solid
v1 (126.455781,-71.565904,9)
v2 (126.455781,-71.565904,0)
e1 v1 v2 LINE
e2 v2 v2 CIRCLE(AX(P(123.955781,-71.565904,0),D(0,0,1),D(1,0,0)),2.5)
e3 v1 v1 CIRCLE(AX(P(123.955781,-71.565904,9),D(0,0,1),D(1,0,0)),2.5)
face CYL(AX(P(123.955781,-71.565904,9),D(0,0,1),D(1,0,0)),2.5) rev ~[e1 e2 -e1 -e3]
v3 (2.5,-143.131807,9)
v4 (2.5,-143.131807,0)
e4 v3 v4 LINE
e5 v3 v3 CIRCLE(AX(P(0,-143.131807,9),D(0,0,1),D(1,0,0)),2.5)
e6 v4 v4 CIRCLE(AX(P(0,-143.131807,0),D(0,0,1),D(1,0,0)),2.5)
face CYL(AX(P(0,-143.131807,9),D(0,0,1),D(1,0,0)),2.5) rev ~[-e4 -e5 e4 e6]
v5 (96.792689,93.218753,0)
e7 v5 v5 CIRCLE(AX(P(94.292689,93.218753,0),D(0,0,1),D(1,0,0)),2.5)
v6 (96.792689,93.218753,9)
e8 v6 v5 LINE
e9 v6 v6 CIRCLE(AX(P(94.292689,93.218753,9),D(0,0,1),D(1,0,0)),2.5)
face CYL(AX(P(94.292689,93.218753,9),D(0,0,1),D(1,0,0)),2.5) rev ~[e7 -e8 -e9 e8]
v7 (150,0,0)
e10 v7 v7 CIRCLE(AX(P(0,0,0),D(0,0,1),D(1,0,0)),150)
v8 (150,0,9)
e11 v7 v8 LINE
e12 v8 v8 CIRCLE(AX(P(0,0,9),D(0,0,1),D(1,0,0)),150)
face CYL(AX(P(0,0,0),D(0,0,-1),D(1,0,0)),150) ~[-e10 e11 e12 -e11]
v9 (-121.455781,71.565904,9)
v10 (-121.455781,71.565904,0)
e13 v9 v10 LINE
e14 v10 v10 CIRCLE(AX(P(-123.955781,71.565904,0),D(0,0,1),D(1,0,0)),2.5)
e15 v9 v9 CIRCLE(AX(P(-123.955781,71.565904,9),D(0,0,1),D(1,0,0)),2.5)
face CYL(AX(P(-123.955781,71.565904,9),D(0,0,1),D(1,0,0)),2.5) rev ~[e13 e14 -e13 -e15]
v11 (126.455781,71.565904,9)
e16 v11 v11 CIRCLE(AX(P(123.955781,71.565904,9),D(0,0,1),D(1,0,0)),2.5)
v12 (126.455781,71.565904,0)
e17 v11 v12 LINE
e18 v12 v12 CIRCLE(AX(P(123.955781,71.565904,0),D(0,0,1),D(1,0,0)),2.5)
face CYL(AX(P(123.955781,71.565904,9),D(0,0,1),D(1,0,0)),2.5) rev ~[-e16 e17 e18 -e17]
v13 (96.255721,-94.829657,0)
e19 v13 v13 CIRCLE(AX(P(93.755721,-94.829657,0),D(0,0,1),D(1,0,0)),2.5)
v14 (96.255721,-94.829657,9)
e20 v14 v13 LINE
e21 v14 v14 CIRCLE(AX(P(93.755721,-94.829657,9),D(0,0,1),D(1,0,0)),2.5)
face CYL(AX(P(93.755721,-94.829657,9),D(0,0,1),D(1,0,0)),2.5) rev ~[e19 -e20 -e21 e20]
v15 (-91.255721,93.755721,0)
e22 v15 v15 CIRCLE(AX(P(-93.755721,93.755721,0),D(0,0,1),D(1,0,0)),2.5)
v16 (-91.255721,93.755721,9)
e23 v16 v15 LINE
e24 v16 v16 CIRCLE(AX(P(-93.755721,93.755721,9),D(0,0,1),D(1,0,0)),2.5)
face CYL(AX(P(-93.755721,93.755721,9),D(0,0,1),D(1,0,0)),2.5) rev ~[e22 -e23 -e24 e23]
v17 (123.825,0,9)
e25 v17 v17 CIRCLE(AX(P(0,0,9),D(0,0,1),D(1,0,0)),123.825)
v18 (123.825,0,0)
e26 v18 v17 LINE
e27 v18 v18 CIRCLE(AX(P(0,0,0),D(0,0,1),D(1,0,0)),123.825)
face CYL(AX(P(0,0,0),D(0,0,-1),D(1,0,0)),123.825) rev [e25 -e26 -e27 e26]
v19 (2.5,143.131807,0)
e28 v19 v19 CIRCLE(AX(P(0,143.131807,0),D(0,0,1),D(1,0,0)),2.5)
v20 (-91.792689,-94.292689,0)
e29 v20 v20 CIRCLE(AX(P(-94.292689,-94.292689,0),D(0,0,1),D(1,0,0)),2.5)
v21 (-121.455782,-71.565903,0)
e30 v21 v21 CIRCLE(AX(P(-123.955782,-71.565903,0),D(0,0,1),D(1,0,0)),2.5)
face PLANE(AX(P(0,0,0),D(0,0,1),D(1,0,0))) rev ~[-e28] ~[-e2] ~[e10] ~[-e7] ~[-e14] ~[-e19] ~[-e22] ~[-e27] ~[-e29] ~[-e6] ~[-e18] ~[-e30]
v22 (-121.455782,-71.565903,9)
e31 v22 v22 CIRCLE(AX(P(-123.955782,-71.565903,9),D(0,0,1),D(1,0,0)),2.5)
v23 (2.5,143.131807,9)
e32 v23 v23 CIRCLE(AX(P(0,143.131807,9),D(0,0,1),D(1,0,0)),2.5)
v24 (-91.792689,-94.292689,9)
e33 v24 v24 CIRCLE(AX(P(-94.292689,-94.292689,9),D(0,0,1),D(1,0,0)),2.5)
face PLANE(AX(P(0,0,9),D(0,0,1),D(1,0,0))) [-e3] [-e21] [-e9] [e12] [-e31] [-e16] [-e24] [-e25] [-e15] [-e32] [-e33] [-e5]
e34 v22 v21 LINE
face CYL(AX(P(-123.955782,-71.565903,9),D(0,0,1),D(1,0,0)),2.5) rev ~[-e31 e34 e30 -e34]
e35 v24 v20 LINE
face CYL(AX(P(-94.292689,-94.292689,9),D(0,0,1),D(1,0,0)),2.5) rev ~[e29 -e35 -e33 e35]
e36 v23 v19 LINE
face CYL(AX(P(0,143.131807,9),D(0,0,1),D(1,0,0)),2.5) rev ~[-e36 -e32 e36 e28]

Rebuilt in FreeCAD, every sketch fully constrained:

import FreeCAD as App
import Part
import Sketcher

V = App.Vector

doc = App.newDocument("Part")
params = doc.addObject("Spreadsheet::Sheet", "Params")
for row, (alias, value) in enumerate([
    ("sketch1_diameter", "300 mm"),
    ("sketch1_diameter2", "247.65 mm"),
    ("pad1_length", "9 mm"),
    ("sketch2_diameter", "5 mm"),
    ("pocket1_length", "25.4 mm"),
], start=1):
    params.set(f"A{row}", alias)
    params.set(f"B{row}", "=" + value)
    params.setAlias(f"B{row}", alias)

body = doc.addObject("PartDesign::Body", "Body")

# Sketch on XY plane
sketch1 = doc.addObject("Sketcher::SketchObject", "Sketch")
body.addObject(sketch1)
sketch1.AttachmentSupport = (doc.XY_Plane, [""])
sketch1.MapMode = "FlatFace"
sketch1.addGeometry([
    Part.Circle(V(0, 0, 0), V(0, 0, 1), 150),
    Part.Circle(V(0, 0, 0), V(0, 0, 1), 123.825),
], False)
sketch1.addConstraint([
    Sketcher.Constraint("Coincident", 0, 3, -1, 1),
    Sketcher.Constraint("Coincident", 1, 3, -1, 1),
    Sketcher.Constraint("Diameter", 0, 300.0),
    Sketcher.Constraint("Diameter", 1, 247.65),
])
sketch1.setExpression("Constraints[2]", "Params.sketch1_diameter")
sketch1.setExpression("Constraints[3]", "Params.sketch1_diameter2")
pad1 = doc.addObject("PartDesign::Pad", "Pad")
body.addObject(pad1)
pad1.Profile = sketch1
pad1.setExpression("Length", "Params.pad1_length")

# Sketch on XY plane
sketch2 = doc.addObject("Sketcher::SketchObject", "Sketch001")
body.addObject(sketch2)
sketch2.AttachmentSupport = (doc.XY_Plane, [""])
sketch2.MapMode = "FlatFace"
sketch2.AttachmentOffset = App.Placement(V(0, 0, 9), App.Rotation())
sketch2.addGeometry([
    Part.Circle(V(-94.292689, -94.292689, 0), V(0, 0, 1), 2.5),  # 0
    Part.Circle(V(93.755721, -94.829657, 0), V(0, 0, 1), 2.5),  # 1
    Part.Circle(V(94.292689, 93.218753, 0), V(0, 0, 1), 2.5),  # 2
    Part.Circle(V(-93.755721, 93.755721, 0), V(0, 0, 1), 2.5),  # 3
    Part.Circle(V(0, 143.131807, 0), V(0, 0, 1), 2.5),  # 4
    Part.Circle(V(123.955781, 71.565904, 0), V(0, 0, 1), 2.5),  # 5
    Part.Circle(V(123.955781, -71.565904, 0), V(0, 0, 1), 2.5),  # 6
    Part.Circle(V(0, -143.131807, 0), V(0, 0, 1), 2.5),  # 7
    Part.Circle(V(-123.955782, -71.565903, 0), V(0, 0, 1), 2.5),  # 8
    Part.Circle(V(-123.955781, 71.565904, 0), V(0, 0, 1), 2.5),  # 9
], False)
sketch2.addConstraint([
    Sketcher.Constraint("Equal", 0, 1),
    Sketcher.Constraint("Equal", 1, 2),
    Sketcher.Constraint("Equal", 2, 3),
    Sketcher.Constraint("Equal", 3, 4),
    Sketcher.Constraint("Equal", 4, 5),
    Sketcher.Constraint("Equal", 5, 6),
    Sketcher.Constraint("Equal", 6, 7),
    Sketcher.Constraint("Equal", 7, 8),
    Sketcher.Constraint("Equal", 8, 9),
    Sketcher.Constraint("Symmetric", 4, 3, 7, 3, -1, 1),
    Sketcher.Constraint("Symmetric", 5, 3, 8, 3, -1, 1),
    Sketcher.Constraint("Symmetric", 6, 3, 9, 3, -1, 1),
    Sketcher.Constraint("Symmetric", 6, 3, 8, 3, -2),
    Sketcher.Constraint("PointOnObject", 4, 3, -2),
    Sketcher.Constraint("Diameter", 0, 5.0),
    Sketcher.Constraint("DistanceX", 3, 3, 5, 3, 217.711502),
    Sketcher.Constraint("DistanceX", 0, 3, -1, 1, 94.292689),
    Sketcher.Constraint("DistanceY", 0, 3, -1, 1, 94.292689),
    Sketcher.Constraint("DistanceX", -1, 1, 1, 3, 93.755721),
    Sketcher.Constraint("DistanceX", -1, 1, 2, 3, 94.292689),
    Sketcher.Constraint("DistanceX", 3, 3, -1, 1, 93.755721),
    Sketcher.Constraint("DistanceY", -1, 1, 3, 3, 93.755721),
    Sketcher.Constraint("DistanceY", 1, 3, 0, 3, 0.536968),
    Sketcher.Constraint("DistanceY", 1, 3, 2, 3, 188.04841),
    Sketcher.Constraint("DistanceY", 5, 3, 2, 3, 21.652849),
    Sketcher.Constraint("DistanceY", 6, 3, 4, 3, 214.697711),
])
sketch2.setExpression("Constraints[14]", "Params.sketch2_diameter")
pocket1 = doc.addObject("PartDesign::Pocket", "Pocket")
body.addObject(pocket1)
pocket1.Profile = sketch2
pocket1.setExpression("Length", "Params.pocket1_length")

doc.recompute()
